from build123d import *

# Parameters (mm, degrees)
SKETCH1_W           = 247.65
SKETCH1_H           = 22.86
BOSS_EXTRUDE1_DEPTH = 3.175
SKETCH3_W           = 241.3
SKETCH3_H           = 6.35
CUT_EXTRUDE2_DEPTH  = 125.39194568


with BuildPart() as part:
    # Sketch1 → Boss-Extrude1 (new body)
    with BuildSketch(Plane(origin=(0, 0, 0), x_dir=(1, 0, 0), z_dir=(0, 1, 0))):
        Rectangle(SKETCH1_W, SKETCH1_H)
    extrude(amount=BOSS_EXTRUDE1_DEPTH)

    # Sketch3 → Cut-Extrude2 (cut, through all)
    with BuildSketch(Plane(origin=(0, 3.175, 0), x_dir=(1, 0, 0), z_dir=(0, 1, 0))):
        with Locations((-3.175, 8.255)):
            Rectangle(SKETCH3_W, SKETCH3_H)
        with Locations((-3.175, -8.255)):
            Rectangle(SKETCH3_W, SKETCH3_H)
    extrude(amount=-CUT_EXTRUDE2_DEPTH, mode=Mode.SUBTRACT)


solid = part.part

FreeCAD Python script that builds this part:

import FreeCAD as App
import Part
import Sketcher
from FreeCAD import Vector
Q = App.Units.Quantity


def add_polygon(sketch, points):
    """Adds a closed chain of lines whose ends are joined by coincident constraints."""
    first, n = sketch.GeometryCount, len(points)
    for a, b in zip(points, points[1:] + points[:1]):
        sketch.addGeometry(Part.LineSegment(App.Vector(*a, 0), App.Vector(*b, 0)), False)
    for i in range(n):
        sketch.addConstraint(Sketcher.Constraint("Coincident", first + i, 2, first + (i + 1) % n, 1))

doc = App.newDocument("Part")
body = doc.addObject("PartDesign::Body", "Body")

# Sketch on XZ plane
sketch1 = body.newObject("Sketcher::SketchObject", "Sketch")
sketch1.AttachmentSupport = (doc.getObject("XZ_Plane"), [""])
sketch1.MapMode = "FlatFace"
add_polygon(sketch1, [(-124, -11), (-124, 11), (124, 11), (124, -11)])  # lines 0-3
sketch1.addConstraint(Sketcher.Constraint("Vertical", 0))
sketch1.addConstraint(Sketcher.Constraint("Horizontal", 1))
sketch1.addConstraint(Sketcher.Constraint("Vertical", 2))
sketch1.addConstraint(Sketcher.Constraint("Horizontal", 3))
sketch1.addConstraint(Sketcher.Constraint("Symmetric", 0, 2, 2, 2, -1, 1))
sketch1.addConstraint(Sketcher.Constraint("DistanceY", 0, 1, 0, 2, Q("0.9 in")))
sketch1.addConstraint(Sketcher.Constraint("DistanceX", 1, 1, 1, 2, Q("9.75 in")))
pad1 = body.newObject("PartDesign::Pad", "Pad")
pad1.Profile = sketch1
pad1.Length = Q("0.125 in")
pad1.Reversed = True

# Sketch on XZ plane
sketch2 = body.newObject("Sketcher::SketchObject", "Sketch001")
sketch2.AttachmentSupport = (doc.getObject("XZ_Plane"), [""])
sketch2.MapMode = "FlatFace"
sketch2.AttachmentOffset = App.Placement(Vector(0, 0, -0.125 * 25.4), App.Rotation())
add_polygon(sketch2, [(-124, -11), (-124, -5), (117, -5), (117, -11)])  # lines 0-3
add_polygon(sketch2, [(-124, 5), (-124, 11), (117, 11), (117, 5)])  # lines 4-7
sketch2.addConstraint(Sketcher.Constraint("Vertical", 0))
sketch2.addConstraint(Sketcher.Constraint("Horizontal", 1))
sketch2.addConstraint(Sketcher.Constraint("Vertical", 2))
sketch2.addConstraint(Sketcher.Constraint("Horizontal", 3))
sketch2.addConstraint(Sketcher.Constraint("Vertical", 4))
sketch2.addConstraint(Sketcher.Constraint("Horizontal", 5))
sketch2.addConstraint(Sketcher.Constraint("Vertical", 6))
sketch2.addConstraint(Sketcher.Constraint("Horizontal", 7))
sketch2.addConstraint(Sketcher.Constraint("Symmetric", 3, 2, 4, 2, -1))
sketch2.addConstraint(Sketcher.Constraint("Symmetric", 1, 2, 6, 2, -1))
sketch2.addConstraint(Sketcher.Constraint("DistanceX", 1, 1, 1, 2, Q("9.5 in")))
sketch2.addConstraint(Sketcher.Constraint("DistanceY", 0, 1, 0, 2, Q("0.25 in")))
sketch2.addConstraint(Sketcher.Constraint("DistanceY", 0, 2, -1, 1, Q("0.2 in")))
sketch2.addConstraint(Sketcher.Constraint("DistanceX", 0, 2, -1, 1, Q("4.875 in")))
pocket1 = body.newObject("PartDesign::Pocket", "Pocket")
pocket1.Profile = sketch2
pocket1.Type = "ThroughAll"
pocket1.Reversed = True

doc.recompute()
